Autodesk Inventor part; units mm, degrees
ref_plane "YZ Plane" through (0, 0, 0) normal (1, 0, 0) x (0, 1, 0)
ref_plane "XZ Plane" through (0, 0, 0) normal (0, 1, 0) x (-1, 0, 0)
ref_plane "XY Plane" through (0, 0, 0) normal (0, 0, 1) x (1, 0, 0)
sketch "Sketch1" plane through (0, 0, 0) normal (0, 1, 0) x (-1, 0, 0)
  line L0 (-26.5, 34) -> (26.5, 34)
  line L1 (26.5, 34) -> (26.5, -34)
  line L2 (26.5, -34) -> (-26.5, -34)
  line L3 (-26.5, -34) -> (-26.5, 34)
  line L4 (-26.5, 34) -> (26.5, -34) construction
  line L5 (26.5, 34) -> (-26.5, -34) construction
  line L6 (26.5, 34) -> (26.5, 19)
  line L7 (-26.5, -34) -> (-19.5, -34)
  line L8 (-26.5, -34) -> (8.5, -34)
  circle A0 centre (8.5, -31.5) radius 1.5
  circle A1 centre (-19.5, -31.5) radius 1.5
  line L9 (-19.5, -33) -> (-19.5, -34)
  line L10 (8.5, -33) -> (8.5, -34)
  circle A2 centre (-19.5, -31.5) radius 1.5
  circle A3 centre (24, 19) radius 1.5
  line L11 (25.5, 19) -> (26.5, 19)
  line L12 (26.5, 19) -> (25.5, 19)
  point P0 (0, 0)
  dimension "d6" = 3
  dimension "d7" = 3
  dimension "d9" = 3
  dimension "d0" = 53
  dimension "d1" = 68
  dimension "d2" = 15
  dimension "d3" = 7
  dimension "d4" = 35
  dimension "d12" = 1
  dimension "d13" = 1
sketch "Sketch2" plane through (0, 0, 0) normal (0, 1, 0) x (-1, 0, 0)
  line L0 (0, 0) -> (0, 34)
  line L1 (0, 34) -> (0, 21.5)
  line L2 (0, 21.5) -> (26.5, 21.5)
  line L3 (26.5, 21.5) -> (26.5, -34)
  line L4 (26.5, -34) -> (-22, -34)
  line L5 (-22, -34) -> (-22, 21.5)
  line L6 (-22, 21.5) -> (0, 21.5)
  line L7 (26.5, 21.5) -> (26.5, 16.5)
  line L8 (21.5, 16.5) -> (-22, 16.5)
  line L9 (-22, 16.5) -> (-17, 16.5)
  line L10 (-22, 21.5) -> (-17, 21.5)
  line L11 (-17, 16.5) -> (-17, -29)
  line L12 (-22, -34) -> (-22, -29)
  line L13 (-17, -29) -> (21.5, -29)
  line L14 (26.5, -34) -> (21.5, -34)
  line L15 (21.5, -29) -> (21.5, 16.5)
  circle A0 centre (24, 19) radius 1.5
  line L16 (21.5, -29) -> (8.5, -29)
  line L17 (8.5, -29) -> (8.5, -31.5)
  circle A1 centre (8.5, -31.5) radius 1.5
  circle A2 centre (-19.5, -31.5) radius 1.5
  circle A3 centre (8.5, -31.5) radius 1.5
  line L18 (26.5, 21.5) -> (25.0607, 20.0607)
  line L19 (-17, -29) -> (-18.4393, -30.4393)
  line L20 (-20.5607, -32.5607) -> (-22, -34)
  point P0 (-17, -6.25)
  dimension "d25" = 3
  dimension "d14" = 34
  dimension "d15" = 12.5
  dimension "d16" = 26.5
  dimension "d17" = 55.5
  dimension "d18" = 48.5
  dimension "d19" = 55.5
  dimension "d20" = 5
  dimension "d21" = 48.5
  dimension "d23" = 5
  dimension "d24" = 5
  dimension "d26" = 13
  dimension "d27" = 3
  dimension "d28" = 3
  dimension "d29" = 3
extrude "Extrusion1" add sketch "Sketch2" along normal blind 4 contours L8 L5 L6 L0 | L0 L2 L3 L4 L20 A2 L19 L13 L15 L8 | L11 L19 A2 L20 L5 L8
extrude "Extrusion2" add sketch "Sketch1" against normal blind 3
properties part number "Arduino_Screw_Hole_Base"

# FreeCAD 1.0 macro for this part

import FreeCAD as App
import Part
import Sketcher
from FreeCAD import Vector
Q = App.Units.Quantity

doc = App.newDocument("Part")
body = doc.addObject("PartDesign::Body", "Body")

# Sketch on XZ plane
sketch1 = doc.addObject("Sketcher::SketchObject", "Sketch")
body.addObject(sketch1)
sketch1.AttachmentSupport = (doc.XZ_Plane, [""])
sketch1.MapMode = "FlatFace"
sketch1.addGeometry([
    Part.LineSegment(Vector(22, 21.5, 0), Vector(22, -34, 0)),  # 0
    Part.LineSegment(Vector(22, -34, 0), Vector(-26.5, -34, 0)),  # 1
    Part.LineSegment(Vector(-26.5, -34, 0), Vector(-26.5, 21.5, 0)),  # 2
    Part.LineSegment(Vector(-26.5, 21.5, 0), Vector(22, 21.5, 0)),  # 3
    Part.LineSegment(Vector(17, 16.5, 0), Vector(-21.5, 16.5, 0)),  # 4
    Part.LineSegment(Vector(-21.5, 16.5, 0), Vector(-21.5, -29, 0)),  # 5
    Part.LineSegment(Vector(-21.5, -29, 0), Vector(-8.5, -29, 0)),  # 6
    Part.LineSegment(Vector(-8.5, -29, 0), Vector(17, -29, 0)),  # 7
    Part.LineSegment(Vector(17, -29, 0), Vector(17, 16.5, 0)),  # 8
    Part.Circle(Vector(19.5, -31.5, 0), Vector(0, 0, 1), 1.5),  # 9
    Part.Circle(Vector(-24, 19, 0), Vector(0, 0, 1), 1.5),  # 10
    Part.Circle(Vector(-8.5, -31.5, 0), Vector(0, 0, 1), 1.5),  # 11
], False)
sketch1.addConstraint([
    Sketcher.Constraint("Coincident", 0, 2, 1, 1),
    Sketcher.Constraint("Coincident", 1, 2, 2, 1),
    Sketcher.Constraint("Coincident", 2, 2, 3, 1),
    Sketcher.Constraint("Coincident", 3, 2, 0, 1),
    Sketcher.Constraint("Coincident", 4, 2, 5, 1),
    Sketcher.Constraint("Coincident", 5, 2, 6, 1),
    Sketcher.Constraint("Coincident", 6, 2, 7, 1),
    Sketcher.Constraint("Coincident", 7, 2, 8, 1),
    Sketcher.Constraint("Coincident", 8, 2, 4, 1),
    Sketcher.Constraint("Vertical", 0),
    Sketcher.Constraint("Horizontal", 1),
    Sketcher.Constraint("Vertical", 2),
    Sketcher.Constraint("Horizontal", 3),
    Sketcher.Constraint("Horizontal", 4),
    Sketcher.Constraint("Vertical", 5),
    Sketcher.Constraint("Horizontal", 6),
    Sketcher.Constraint("Horizontal", 7),
    Sketcher.Constraint("Vertical", 8),
    Sketcher.Constraint("Equal", 9, 10),
    Sketcher.Constraint("Equal", 10, 11),
    Sketcher.Constraint("Horizontal", 9, 3, 11, 3),
    Sketcher.Constraint("Vertical", 11, 3, 6, 2),
    Sketcher.Constraint("Diameter", 9, Q("3 mm")),
    Sketcher.Constraint("DistanceX", 6, 1, 6, 2, Q("13 mm")),
    Sketcher.Constraint("DistanceX", 1, 2, 1, 1, Q("48.5 mm")),
    Sketcher.Constraint("DistanceY", 0, 2, 0, 1, Q("55.5 mm")),
    Sketcher.Constraint("DistanceY", 0, 2, -1, 1, Q("34 mm")),
    Sketcher.Constraint("DistanceX", 2, 2, 4, 2, Q("5 mm")),
    Sketcher.Constraint("DistanceY", 4, 2, 2, 2, Q("5 mm")),
    Sketcher.Constraint("DistanceY", 1, 2, 5, 2, Q("5 mm")),
    Sketcher.Constraint("DistanceX", 7, 2, 0, 2, Q("5 mm")),
    Sketcher.Constraint("DistanceX", 1, 2, -1, 1, Q("26.5 mm")),
    Sketcher.Constraint("DistanceX", 10, 3, -1, 1, Q("24 mm")),
    Sketcher.Constraint("DistanceY", -1, 1, 10, 3, Q("19 mm")),
    Sketcher.Constraint("DistanceX", 11, 3, 9, 3, Q("28 mm")),
    Sketcher.Constraint("DistanceY", 11, 3, 2, 2, Q("53 mm")),
])
pad1 = doc.addObject("PartDesign::Pad", "Pad")
body.addObject(pad1)
pad1.Profile = sketch1
pad1.Length = 4
pad1.Reversed = True

# Sketch on XZ plane
sketch2 = doc.addObject("Sketcher::SketchObject", "Sketch001")
body.addObject(sketch2)
sketch2.AttachmentSupport = (doc.XZ_Plane, [""])
sketch2.MapMode = "FlatFace"
sketch2.addGeometry([
    Part.LineSegment(Vector(-26.5, 34, 0), Vector(26.5, 34, 0)),  # 0
    Part.LineSegment(Vector(26.5, 34, 0), Vector(26.5, -34, 0)),  # 1
    Part.LineSegment(Vector(26.5, -34, 0), Vector(19.5, -34, 0)),  # 2
    Part.LineSegment(Vector(19.5, -34, 0), Vector(-8.5, -34, 0)),  # 3
    Part.LineSegment(Vector(-8.5, -34, 0), Vector(-26.5, -34, 0)),  # 4
    Part.LineSegment(Vector(-26.5, -34, 0), Vector(-26.5, 19, 0)),  # 5
    Part.LineSegment(Vector(-26.5, 19, 0), Vector(-26.5, 34, 0)),  # 6
    Part.Circle(Vector(19.5, -31.5, 0), Vector(0, 0, 1), 1.5),  # 7
    Part.Circle(Vector(-8.5, -31.5, 0), Vector(0, 0, 1), 1.5),  # 8
    Part.Circle(Vector(-24, 19, 0), Vector(0, 0, 1), 1.5),  # 9
], False)
sketch2.addConstraint([
    Sketcher.Constraint("Coincident", 0, 2, 1, 1),
    Sketcher.Constraint("Coincident", 1, 2, 2, 1),
    Sketcher.Constraint("Coincident", 2, 2, 3, 1),
    Sketcher.Constraint("Coincident", 3, 2, 4, 1),
    Sketcher.Constraint("Coincident", 4, 2, 5, 1),
    Sketcher.Constraint("Coincident", 5, 2, 6, 1),
    Sketcher.Constraint("Coincident", 6, 2, 0, 1),
    Sketcher.Constraint("Horizontal", 0),
    Sketcher.Constraint("Vertical", 1),
    Sketcher.Constraint("Horizontal", 2),
    Sketcher.Constraint("Horizontal", 3),
    Sketcher.Constraint("Horizontal", 4),
    Sketcher.Constraint("Vertical", 5),
    Sketcher.Constraint("Vertical", 6),
    Sketcher.Constraint("Equal", 7, 8),
    Sketcher.Constraint("Equal", 8, 9),
    Sketcher.Constraint("Symmetric", 0, 2, 4, 2, -1, 1),
    Sketcher.Constraint("Horizontal", 7, 3, 8, 3),
    Sketcher.Constraint("Horizontal", 9, 3, 5, 2),
    Sketcher.Constraint("Vertical", 7, 3, 2, 2),
    Sketcher.Constraint("Vertical", 8, 3, 3, 2),
    Sketcher.Constraint("Equal", 0, 5),
    Sketcher.Constraint("Diameter", 7, Q("3 mm")),
    Sketcher.Constraint("DistanceX", 0, 1, 0, 2, Q("53 mm")),
    Sketcher.Constraint("DistanceX", 2, 2, 2, 1, Q("7 mm")),
    Sketcher.Constraint("DistanceY", 1, 2, 1, 1, Q("68 mm")),
    Sketcher.Constraint("DistanceX", 8, 3, 0, 2, Q("35 mm")),
    Sketcher.Constraint("DistanceX", 9, 3, -1, 1, Q("24 mm")),
    Sketcher.Constraint("DistanceY", 7, 3, -1, 1, Q("31.5 mm")),
])
pad2 = doc.addObject("PartDesign::Pad", "Pad001")
body.addObject(pad2)
pad2.Profile = sketch2
pad2.Length = 3

doc.recompute()
